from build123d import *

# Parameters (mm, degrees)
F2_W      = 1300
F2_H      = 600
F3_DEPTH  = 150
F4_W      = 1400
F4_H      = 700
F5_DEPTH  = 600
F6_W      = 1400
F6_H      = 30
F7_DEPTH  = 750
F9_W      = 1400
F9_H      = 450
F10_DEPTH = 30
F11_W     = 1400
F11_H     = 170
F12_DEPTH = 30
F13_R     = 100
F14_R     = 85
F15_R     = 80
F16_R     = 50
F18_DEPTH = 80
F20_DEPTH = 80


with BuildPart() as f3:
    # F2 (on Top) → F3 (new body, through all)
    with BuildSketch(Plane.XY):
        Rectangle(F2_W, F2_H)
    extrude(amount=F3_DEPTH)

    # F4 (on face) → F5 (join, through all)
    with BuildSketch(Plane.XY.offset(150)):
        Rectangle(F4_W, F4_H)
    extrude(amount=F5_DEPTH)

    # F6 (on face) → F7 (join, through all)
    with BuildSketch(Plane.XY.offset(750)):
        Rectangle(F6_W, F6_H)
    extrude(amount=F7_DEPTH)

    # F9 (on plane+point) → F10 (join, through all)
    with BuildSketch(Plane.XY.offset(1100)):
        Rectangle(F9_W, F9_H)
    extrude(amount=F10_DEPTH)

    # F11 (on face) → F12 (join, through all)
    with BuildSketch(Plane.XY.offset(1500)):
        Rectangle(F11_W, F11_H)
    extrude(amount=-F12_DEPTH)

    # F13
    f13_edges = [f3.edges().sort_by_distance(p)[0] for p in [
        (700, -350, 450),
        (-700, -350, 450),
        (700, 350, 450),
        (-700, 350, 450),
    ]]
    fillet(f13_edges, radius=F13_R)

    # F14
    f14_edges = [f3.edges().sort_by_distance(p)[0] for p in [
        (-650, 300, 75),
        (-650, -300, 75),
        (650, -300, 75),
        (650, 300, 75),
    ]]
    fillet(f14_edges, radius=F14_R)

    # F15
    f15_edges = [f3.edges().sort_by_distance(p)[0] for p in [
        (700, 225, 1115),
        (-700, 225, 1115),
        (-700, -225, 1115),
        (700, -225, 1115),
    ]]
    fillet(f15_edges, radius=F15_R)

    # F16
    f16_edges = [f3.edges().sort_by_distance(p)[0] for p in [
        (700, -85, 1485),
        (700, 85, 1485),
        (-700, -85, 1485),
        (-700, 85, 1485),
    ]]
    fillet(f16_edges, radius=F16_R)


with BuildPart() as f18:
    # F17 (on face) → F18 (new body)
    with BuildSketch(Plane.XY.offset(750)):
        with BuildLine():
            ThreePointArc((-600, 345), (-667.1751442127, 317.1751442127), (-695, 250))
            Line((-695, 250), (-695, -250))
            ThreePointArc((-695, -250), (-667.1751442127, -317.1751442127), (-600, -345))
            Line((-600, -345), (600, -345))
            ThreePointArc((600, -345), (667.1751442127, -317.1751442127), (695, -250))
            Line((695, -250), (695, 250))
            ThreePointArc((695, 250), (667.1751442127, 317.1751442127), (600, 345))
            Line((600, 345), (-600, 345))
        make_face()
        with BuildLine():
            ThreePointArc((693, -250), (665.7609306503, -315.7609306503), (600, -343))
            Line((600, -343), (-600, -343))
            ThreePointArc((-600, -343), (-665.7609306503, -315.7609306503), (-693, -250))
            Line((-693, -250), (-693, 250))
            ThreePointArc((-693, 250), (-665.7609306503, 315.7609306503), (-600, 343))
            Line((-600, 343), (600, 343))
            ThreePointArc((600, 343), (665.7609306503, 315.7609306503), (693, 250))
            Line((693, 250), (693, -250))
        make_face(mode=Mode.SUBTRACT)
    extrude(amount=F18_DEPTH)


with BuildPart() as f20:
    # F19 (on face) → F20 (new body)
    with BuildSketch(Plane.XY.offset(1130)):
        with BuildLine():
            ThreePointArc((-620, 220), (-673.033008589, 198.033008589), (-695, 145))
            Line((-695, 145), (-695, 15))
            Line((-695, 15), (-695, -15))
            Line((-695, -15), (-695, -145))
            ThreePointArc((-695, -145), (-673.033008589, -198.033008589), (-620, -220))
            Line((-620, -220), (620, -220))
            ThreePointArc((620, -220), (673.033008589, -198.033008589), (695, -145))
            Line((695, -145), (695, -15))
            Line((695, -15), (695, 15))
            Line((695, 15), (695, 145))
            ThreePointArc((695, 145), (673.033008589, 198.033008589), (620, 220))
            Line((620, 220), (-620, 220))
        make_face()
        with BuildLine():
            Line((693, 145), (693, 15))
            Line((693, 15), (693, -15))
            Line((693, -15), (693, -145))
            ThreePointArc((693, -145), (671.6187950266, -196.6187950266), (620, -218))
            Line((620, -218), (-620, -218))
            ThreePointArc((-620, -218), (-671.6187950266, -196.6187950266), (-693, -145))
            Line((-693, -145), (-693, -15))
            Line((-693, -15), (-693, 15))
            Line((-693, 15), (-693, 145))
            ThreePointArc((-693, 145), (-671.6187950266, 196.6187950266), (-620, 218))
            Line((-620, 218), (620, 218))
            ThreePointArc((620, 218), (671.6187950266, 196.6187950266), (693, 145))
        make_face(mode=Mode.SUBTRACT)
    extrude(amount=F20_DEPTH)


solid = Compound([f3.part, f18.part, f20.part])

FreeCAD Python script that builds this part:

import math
import FreeCAD as App
import Part
import Sketcher


def edges_at(feature, points):
    """Names of the edges that pass closest to the given points."""
    edges = feature.Shape.Edges
    near = lambda p: min(range(len(edges)), key=lambda i: edges[i].distToShape(Part.Vertex(*p))[0])
    return sorted({f"Edge{near(p) + 1}" for p in points})

doc = App.newDocument("Part")
body = doc.addObject("PartDesign::Body", "Body")

# Sketch on XY plane
sketch1 = body.newObject("Sketcher::SketchObject", "Sketch")
sketch1.AttachmentSupport = (doc.getObject("XY_Plane"), [""])
sketch1.MapMode = "FlatFace"
sketch1.addGeometry(Part.LineSegment(App.Vector(-650, 300, 0), App.Vector(-650, -300, 0)), False)
sketch1.addGeometry(Part.LineSegment(App.Vector(-650, -300, 0), App.Vector(650, -300, 0)), False)
sketch1.addGeometry(Part.LineSegment(App.Vector(650, -300, 0), App.Vector(650, 300, 0)), False)
sketch1.addGeometry(Part.LineSegment(App.Vector(650, 300, 0), App.Vector(-650, 300, 0)), False)
sketch1.addConstraint(Sketcher.Constraint("Coincident", 0, 2, 1, 1))
sketch1.addConstraint(Sketcher.Constraint("Coincident", 1, 2, 2, 1))
sketch1.addConstraint(Sketcher.Constraint("Coincident", 2, 2, 3, 1))
sketch1.addConstraint(Sketcher.Constraint("Coincident", 3, 2, 0, 1))
sketch1.addConstraint(Sketcher.Constraint("Vertical", 0))
sketch1.addConstraint(Sketcher.Constraint("Horizontal", 1))
sketch1.addConstraint(Sketcher.Constraint("Vertical", 2))
sketch1.addConstraint(Sketcher.Constraint("Horizontal", 3))
sketch1.addConstraint(Sketcher.Constraint("Symmetric", 0, 2, 2, 2, -1, 1))
sketch1.addConstraint(Sketcher.Constraint("DistanceX", 1, 1, 1, 2, 1300.0))
sketch1.addConstraint(Sketcher.Constraint("DistanceY", 0, 2, 0, 1, 600.0))
pad1 = body.newObject("PartDesign::Pad", "Pad")
pad1.Profile = sketch1
pad1.Length = 150

# Sketch on XY plane
sketch2 = body.newObject("Sketcher::SketchObject", "Sketch001")
sketch2.AttachmentSupport = (doc.getObject("XY_Plane"), [""])
sketch2.MapMode = "FlatFace"
sketch2.AttachmentOffset = App.Placement(App.Vector(0, 0, 150), App.Rotation())
sketch2.addGeometry(Part.LineSegment(App.Vector(-700, 350, 0), App.Vector(-700, -350, 0)), False)
sketch2.addGeometry(Part.LineSegment(App.Vector(-700, -350, 0), App.Vector(700, -350, 0)), False)
sketch2.addGeometry(Part.LineSegment(App.Vector(700, -350, 0), App.Vector(700, 350, 0)), False)
sketch2.addGeometry(Part.LineSegment(App.Vector(700, 350, 0), App.Vector(-700, 350, 0)), False)
sketch2.addConstraint(Sketcher.Constraint("Coincident", 0, 2, 1, 1))
sketch2.addConstraint(Sketcher.Constraint("Coincident", 1, 2, 2, 1))
sketch2.addConstraint(Sketcher.Constraint("Coincident", 2, 2, 3, 1))
sketch2.addConstraint(Sketcher.Constraint("Coincident", 3, 2, 0, 1))
sketch2.addConstraint(Sketcher.Constraint("Vertical", 0))
sketch2.addConstraint(Sketcher.Constraint("Horizontal", 1))
sketch2.addConstraint(Sketcher.Constraint("Vertical", 2))
sketch2.addConstraint(Sketcher.Constraint("Horizontal", 3))
sketch2.addConstraint(Sketcher.Constraint("Symmetric", 0, 2, 2, 2, -1, 1))
sketch2.addConstraint(Sketcher.Constraint("DistanceX", 1, 1, 1, 2, 1400.0))
sketch2.addConstraint(Sketcher.Constraint("DistanceY", 0, 2, 0, 1, 700.0))
pad2 = body.newObject("PartDesign::Pad", "Pad001")
pad2.Profile = sketch2
pad2.Length = 600

# Sketch on XY plane
sketch3 = body.newObject("Sketcher::SketchObject", "Sketch002")
sketch3.AttachmentSupport = (doc.getObject("XY_Plane"), [""])
sketch3.MapMode = "FlatFace"
sketch3.AttachmentOffset = App.Placement(App.Vector(0, 0, 750), App.Rotation())
sketch3.addGeometry(Part.LineSegment(App.Vector(-700, 15, 0), App.Vector(-700, -15, 0)), False)
sketch3.addGeometry(Part.LineSegment(App.Vector(-700, -15, 0), App.Vector(700, -15, 0)), False)
sketch3.addGeometry(Part.LineSegment(App.Vector(700, -15, 0), App.Vector(700, 15, 0)), False)
sketch3.addGeometry(Part.LineSegment(App.Vector(700, 15, 0), App.Vector(-700, 15, 0)), False)
sketch3.addConstraint(Sketcher.Constraint("Coincident", 0, 2, 1, 1))
sketch3.addConstraint(Sketcher.Constraint("Coincident", 1, 2, 2, 1))
sketch3.addConstraint(Sketcher.Constraint("Coincident", 2, 2, 3, 1))
sketch3.addConstraint(Sketcher.Constraint("Coincident", 3, 2, 0, 1))
sketch3.addConstraint(Sketcher.Constraint("Vertical", 0))
sketch3.addConstraint(Sketcher.Constraint("Horizontal", 1))
sketch3.addConstraint(Sketcher.Constraint("Vertical", 2))
sketch3.addConstraint(Sketcher.Constraint("Horizontal", 3))
sketch3.addConstraint(Sketcher.Constraint("Symmetric", 0, 2, 2, 2, -1, 1))
sketch3.addConstraint(Sketcher.Constraint("DistanceX", 1, 1, 1, 2, 1400.0))
sketch3.addConstraint(Sketcher.Constraint("DistanceY", 0, 2, 0, 1, 30.0))
pad3 = body.newObject("PartDesign::Pad", "Pad002")
pad3.Profile = sketch3
pad3.Length = 750

# Sketch on XY plane
sketch4 = body.newObject("Sketcher::SketchObject", "Sketch003")
sketch4.AttachmentSupport = (doc.getObject("XY_Plane"), [""])
sketch4.MapMode = "FlatFace"
sketch4.AttachmentOffset = App.Placement(App.Vector(0, 0, 1100), App.Rotation())
sketch4.addGeometry(Part.LineSegment(App.Vector(-700, 225, 0), App.Vector(-700, -225, 0)), False)
sketch4.addGeometry(Part.LineSegment(App.Vector(-700, -225, 0), App.Vector(700, -225, 0)), False)
sketch4.addGeometry(Part.LineSegment(App.Vector(700, -225, 0), App.Vector(700, 225, 0)), False)
sketch4.addGeometry(Part.LineSegment(App.Vector(700, 225, 0), App.Vector(-700, 225, 0)), False)
sketch4.addConstraint(Sketcher.Constraint("Coincident", 0, 2, 1, 1))
sketch4.addConstraint(Sketcher.Constraint("Coincident", 1, 2, 2, 1))
sketch4.addConstraint(Sketcher.Constraint("Coincident", 2, 2, 3, 1))
sketch4.addConstraint(Sketcher.Constraint("Coincident", 3, 2, 0, 1))
sketch4.addConstraint(Sketcher.Constraint("Vertical", 0))
sketch4.addConstraint(Sketcher.Constraint("Horizontal", 1))
sketch4.addConstraint(Sketcher.Constraint("Vertical", 2))
sketch4.addConstraint(Sketcher.Constraint("Horizontal", 3))
sketch4.addConstraint(Sketcher.Constraint("Symmetric", 0, 2, 2, 2, -1, 1))
sketch4.addConstraint(Sketcher.Constraint("DistanceX", 1, 1, 1, 2, 1400.0))
sketch4.addConstraint(Sketcher.Constraint("DistanceY", 0, 2, 0, 1, 450.0))
pad4 = body.newObject("PartDesign::Pad", "Pad003")
pad4.Profile = sketch4
pad4.Length = 30

# Sketch on XY plane
sketch5 = body.newObject("Sketcher::SketchObject", "Sketch004")
sketch5.AttachmentSupport = (doc.getObject("XY_Plane"), [""])
sketch5.MapMode = "FlatFace"
sketch5.AttachmentOffset = App.Placement(App.Vector(0, 0, 1500), App.Rotation())
sketch5.addGeometry(Part.LineSegment(App.Vector(-700, 85, 0), App.Vector(-700, -85, 0)), False)
sketch5.addGeometry(Part.LineSegment(App.Vector(-700, -85, 0), App.Vector(700, -85, 0)), False)
sketch5.addGeometry(Part.LineSegment(App.Vector(700, -85, 0), App.Vector(700, 85, 0)), False)
sketch5.addGeometry(Part.LineSegment(App.Vector(700, 85, 0), App.Vector(-700, 85, 0)), False)
sketch5.addConstraint(Sketcher.Constraint("Coincident", 0, 2, 1, 1))
sketch5.addConstraint(Sketcher.Constraint("Coincident", 1, 2, 2, 1))
sketch5.addConstraint(Sketcher.Constraint("Coincident", 2, 2, 3, 1))
sketch5.addConstraint(Sketcher.Constraint("Coincident", 3, 2, 0, 1))
sketch5.addConstraint(Sketcher.Constraint("Vertical", 0))
sketch5.addConstraint(Sketcher.Constraint("Horizontal", 1))
sketch5.addConstraint(Sketcher.Constraint("Vertical", 2))
sketch5.addConstraint(Sketcher.Constraint("Horizontal", 3))
sketch5.addConstraint(Sketcher.Constraint("Symmetric", 0, 2, 2, 2, -1, 1))
sketch5.addConstraint(Sketcher.Constraint("DistanceX", 1, 1, 1, 2, 1400.0))
sketch5.addConstraint(Sketcher.Constraint("DistanceY", 0, 2, 0, 1, 170.0))
pad5 = body.newObject("PartDesign::Pad", "Pad004")
pad5.Profile = sketch5
pad5.Length = 30
pad5.Reversed = True
doc.recompute()

fillet = body.newObject("PartDesign::Fillet", "Fillet")
fillet.Base = (pad5, edges_at(pad5, [
    (700, -350, 450),
    (-700, -350, 450),
    (700, 350, 450),
    (-700, 350, 450),
]))
fillet.Radius = 100
doc.recompute()

fillet2 = body.newObject("PartDesign::Fillet", "Fillet001")
fillet2.Base = (fillet, edges_at(fillet, [
    (-650, 300, 75),
    (-650, -300, 75),
    (650, -300, 75),
    (650, 300, 75),
]))
fillet2.Radius = 85
doc.recompute()

fillet3 = body.newObject("PartDesign::Fillet", "Fillet002")
fillet3.Base = (fillet2, edges_at(fillet2, [
    (700, 225, 1115),
    (-700, 225, 1115),
    (-700, -225, 1115),
    (700, -225, 1115),
]))
fillet3.Radius = 80
doc.recompute()

fillet4 = body.newObject("PartDesign::Fillet", "Fillet003")
fillet4.Base = (fillet3, edges_at(fillet3, [
    (700, -85, 1485),
    (700, 85, 1485),
    (-700, -85, 1485),
    (-700, 85, 1485),
]))
fillet4.Radius = 50
body2 = doc.addObject("PartDesign::Body", "Body001")

# Sketch on XY plane
sketch6 = body2.newObject("Sketcher::SketchObject", "Sketch005")
sketch6.AttachmentSupport = (doc.getObject("XY_Plane001"), [""])
sketch6.MapMode = "FlatFace"
sketch6.AttachmentOffset = App.Placement(App.Vector(0, 0, 750), App.Rotation())
sketch6.addGeometry(Part.ArcOfCircle(Part.Circle(App.Vector(-600, 250, 0), App.Vector(0, 0, 1), 95), math.radians(90), math.radians(180)), False)
sketch6.addGeometry(Part.LineSegment(App.Vector(-695, 250, 0), App.Vector(-695, -250, 0)), False)
sketch6.addGeometry(Part.ArcOfCircle(Part.Circle(App.Vector(-600, -250, 0), App.Vector(0, 0, 1), 95), math.radians(180), math.radians(270)), False)
sketch6.addGeometry(Part.LineSegment(App.Vector(-600, -345, 0), App.Vector(600, -345, 0)), False)
sketch6.addGeometry(Part.ArcOfCircle(Part.Circle(App.Vector(600, -250, 0), App.Vector(0, 0, 1), 95), math.radians(-90), math.radians(0)), False)
sketch6.addGeometry(Part.LineSegment(App.Vector(695, -250, 0), App.Vector(695, 250, 0)), False)
sketch6.addGeometry(Part.ArcOfCircle(Part.Circle(App.Vector(600, 250, 0), App.Vector(0, 0, 1), 95), math.radians(0), math.radians(90)), False)
sketch6.addGeometry(Part.LineSegment(App.Vector(600, 345, 0), App.Vector(-600, 345, 0)), False)
sketch6.addGeometry(Part.LineSegment(App.Vector(693, 250, 0), App.Vector(693, -250, 0)), False)
sketch6.addGeometry(Part.ArcOfCircle(Part.Circle(App.Vector(600, -250, 0), App.Vector(0, 0, 1), 93), math.radians(-90), math.radians(0)), False)
sketch6.addGeometry(Part.LineSegment(App.Vector(600, -343, 0), App.Vector(-600, -343, 0)), False)
sketch6.addGeometry(Part.ArcOfCircle(Part.Circle(App.Vector(-600, -250, 0), App.Vector(0, 0, 1), 93), math.radians(180), math.radians(270)), False)
sketch6.addGeometry(Part.LineSegment(App.Vector(-693, -250, 0), App.Vector(-693, 250, 0)), False)
sketch6.addGeometry(Part.ArcOfCircle(Part.Circle(App.Vector(-600, 250, 0), App.Vector(0, 0, 1), 93), math.radians(90), math.radians(180)), False)
sketch6.addGeometry(Part.LineSegment(App.Vector(-600, 343, 0), App.Vector(600, 343, 0)), False)
sketch6.addGeometry(Part.ArcOfCircle(Part.Circle(App.Vector(600, 250, 0), App.Vector(0, 0, 1), 93), math.radians(0), math.radians(90)), False)
sketch6.addConstraint(Sketcher.Constraint("Tangent", 0, 2, 1, 1))
sketch6.addConstraint(Sketcher.Constraint("Tangent", 1, 2, 2, 1))
sketch6.addConstraint(Sketcher.Constraint("Tangent", 2, 2, 3, 1))
sketch6.addConstraint(Sketcher.Constraint("Tangent", 3, 2, 4, 1))
sketch6.addConstraint(Sketcher.Constraint("Tangent", 4, 2, 5, 1))
sketch6.addConstraint(Sketcher.Constraint("Tangent", 5, 2, 6, 1))
sketch6.addConstraint(Sketcher.Constraint("Tangent", 6, 2, 7, 1))
sketch6.addConstraint(Sketcher.Constraint("Tangent", 7, 2, 0, 1))
sketch6.addConstraint(Sketcher.Constraint("Tangent", 8, 2, 9, 2))
sketch6.addConstraint(Sketcher.Constraint("Tangent", 9, 1, 10, 1))
sketch6.addConstraint(Sketcher.Constraint("Tangent", 10, 2, 11, 2))
sketch6.addConstraint(Sketcher.Constraint("Tangent", 11, 1, 12, 1))
sketch6.addConstraint(Sketcher.Constraint("Tangent", 12, 2, 13, 2))
sketch6.addConstraint(Sketcher.Constraint("Tangent", 13, 1, 14, 1))
sketch6.addConstraint(Sketcher.Constraint("Tangent", 14, 2, 15, 2))
sketch6.addConstraint(Sketcher.Constraint("Tangent", 15, 1, 8, 1))
sketch6.addConstraint(Sketcher.Constraint("Vertical", 1))
sketch6.addConstraint(Sketcher.Constraint("Horizontal", 3))
sketch6.addConstraint(Sketcher.Constraint("Vertical", 5))
sketch6.addConstraint(Sketcher.Constraint("Horizontal", 7))
sketch6.addConstraint(Sketcher.Constraint("Vertical", 8))
sketch6.addConstraint(Sketcher.Constraint("Horizontal", 10))
sketch6.addConstraint(Sketcher.Constraint("Vertical", 12))
sketch6.addConstraint(Sketcher.Constraint("Horizontal", 14))
sketch6.addConstraint(Sketcher.Constraint("Coincident", 9, 3, 4, 3))
sketch6.addConstraint(Sketcher.Constraint("Coincident", 11, 3, 2, 3))
sketch6.addConstraint(Sketcher.Constraint("Coincident", 13, 3, 0, 3))
sketch6.addConstraint(Sketcher.Constraint("Equal", 0, 2))
sketch6.addConstraint(Sketcher.Constraint("Equal", 2, 4))
sketch6.addConstraint(Sketcher.Constraint("Equal", 4, 6))
sketch6.addConstraint(Sketcher.Constraint("Equal", 13, 15))
sketch6.addConstraint(Sketcher.Constraint("Symmetric", 0, 3, 4, 3, -1, 1))
sketch6.addConstraint(Sketcher.Constraint("Radius", 0, 95.0))
sketch6.addConstraint(Sketcher.Constraint("Radius", 9, 93.0))
sketch6.addConstraint(Sketcher.Constraint("DistanceX", 3, 1, 3, 2, 1200.0))
sketch6.addConstraint(Sketcher.Constraint("DistanceY", 1, 2, 1, 1, 500.0))
pad6 = body2.newObject("PartDesign::Pad", "Pad005")
pad6.Profile = sketch6
pad6.Length = 80
body3 = doc.addObject("PartDesign::Body", "Body002")

# Sketch on XY plane
sketch7 = body3.newObject("Sketcher::SketchObject", "Sketch006")
sketch7.AttachmentSupport = (doc.getObject("XY_Plane002"), [""])
sketch7.MapMode = "FlatFace"
sketch7.AttachmentOffset = App.Placement(App.Vector(0, 0, 1130), App.Rotation())
sketch7.addGeometry(Part.ArcOfCircle(Part.Circle(App.Vector(-620, 145, 0), App.Vector(0, 0, 1), 75), math.radians(90), math.radians(180)), False)
sketch7.addGeometry(Part.LineSegment(App.Vector(-695, 145, 0), App.Vector(-695, -145, 0)), False)
sketch7.addGeometry(Part.ArcOfCircle(Part.Circle(App.Vector(-620, -145, 0), App.Vector(0, 0, 1), 75), math.radians(180), math.radians(270)), False)
sketch7.addGeometry(Part.LineSegment(App.Vector(-620, -220, 0), App.Vector(620, -220, 0)), False)
sketch7.addGeometry(Part.ArcOfCircle(Part.Circle(App.Vector(620, -145, 0), App.Vector(0, 0, 1), 75), math.radians(-90), math.radians(0)), False)
sketch7.addGeometry(Part.LineSegment(App.Vector(695, -145, 0), App.Vector(695, 145, 0)), False)
sketch7.addGeometry(Part.ArcOfCircle(Part.Circle(App.Vector(620, 145, 0), App.Vector(0, 0, 1), 75), math.radians(0), math.radians(90)), False)
sketch7.addGeometry(Part.LineSegment(App.Vector(620, 220, 0), App.Vector(-620, 220, 0)), False)
sketch7.addGeometry(Part.ArcOfCircle(Part.Circle(App.Vector(620, 145, 0), App.Vector(0, 0, 1), 73), math.radians(0), math.radians(90)), False)
sketch7.addGeometry(Part.LineSegment(App.Vector(693, 145, 0), App.Vector(693, -145, 0)), False)
sketch7.addGeometry(Part.ArcOfCircle(Part.Circle(App.Vector(620, -145, 0), App.Vector(0, 0, 1), 73), math.radians(-90), math.radians(0)), False)
sketch7.addGeometry(Part.LineSegment(App.Vector(620, -218, 0), App.Vector(-620, -218, 0)), False)
sketch7.addGeometry(Part.ArcOfCircle(Part.Circle(App.Vector(-620, -145, 0), App.Vector(0, 0, 1), 73), math.radians(180), math.radians(270)), False)
sketch7.addGeometry(Part.LineSegment(App.Vector(-693, -145, 0), App.Vector(-693, 145, 0)), False)
sketch7.addGeometry(Part.ArcOfCircle(Part.Circle(App.Vector(-620, 145, 0), App.Vector(0, 0, 1), 73), math.radians(90), math.radians(180)), False)
sketch7.addGeometry(Part.LineSegment(App.Vector(-620, 218, 0), App.Vector(620, 218, 0)), False)
sketch7.addConstraint(Sketcher.Constraint("Tangent", 0, 2, 1, 1))
sketch7.addConstraint(Sketcher.Constraint("Tangent", 1, 2, 2, 1))
sketch7.addConstraint(Sketcher.Constraint("Tangent", 2, 2, 3, 1))
sketch7.addConstraint(Sketcher.Constraint("Tangent", 3, 2, 4, 1))
sketch7.addConstraint(Sketcher.Constraint("Tangent", 4, 2, 5, 1))
sketch7.addConstraint(Sketcher.Constraint("Tangent", 5, 2, 6, 1))
sketch7.addConstraint(Sketcher.Constraint("Tangent", 6, 2, 7, 1))
sketch7.addConstraint(Sketcher.Constraint("Tangent", 7, 2, 0, 1))
sketch7.addConstraint(Sketcher.Constraint("Tangent", 8, 1, 9, 1))
sketch7.addConstraint(Sketcher.Constraint("Tangent", 9, 2, 10, 2))
sketch7.addConstraint(Sketcher.Constraint("Tangent", 10, 1, 11, 1))
sketch7.addConstraint(Sketcher.Constraint("Tangent", 11, 2, 12, 2))
sketch7.addConstraint(Sketcher.Constraint("Tangent", 12, 1, 13, 1))
sketch7.addConstraint(Sketcher.Constraint("Tangent", 13, 2, 14, 2))
sketch7.addConstraint(Sketcher.Constraint("Tangent", 14, 1, 15, 1))
sketch7.addConstraint(Sketcher.Constraint("Tangent", 15, 2, 8, 2))
sketch7.addConstraint(Sketcher.Constraint("Vertical", 1))
sketch7.addConstraint(Sketcher.Constraint("Horizontal", 3))
sketch7.addConstraint(Sketcher.Constraint("Vertical", 5))
sketch7.addConstraint(Sketcher.Constraint("Horizontal", 7))
sketch7.addConstraint(Sketcher.Constraint("Vertical", 9))
sketch7.addConstraint(Sketcher.Constraint("Horizontal", 11))
sketch7.addConstraint(Sketcher.Constraint("Vertical", 13))
sketch7.addConstraint(Sketcher.Constraint("Horizontal", 15))
sketch7.addConstraint(Sketcher.Constraint("Coincident", 8, 3, 6, 3))
sketch7.addConstraint(Sketcher.Constraint("Coincident", 10, 3, 4, 3))
sketch7.addConstraint(Sketcher.Constraint("Coincident", 12, 3, 2, 3))
sketch7.addConstraint(Sketcher.Constraint("Equal", 0, 2))
sketch7.addConstraint(Sketcher.Constraint("Equal", 2, 4))
sketch7.addConstraint(Sketcher.Constraint("Equal", 4, 6))
sketch7.addConstraint(Sketcher.Constraint("Equal", 12, 14))
sketch7.addConstraint(Sketcher.Constraint("Symmetric", 0, 3, 4, 3, -1, 1))
sketch7.addConstraint(Sketcher.Constraint("Radius", 0, 75.0))
sketch7.addConstraint(Sketcher.Constraint("Radius", 8, 73.0))
sketch7.addConstraint(Sketcher.Constraint("DistanceX", 3, 1, 3, 2, 1240.0))
sketch7.addConstraint(Sketcher.Constraint("DistanceY", 1, 2, 1, 1, 290.0))
pad7 = body3.newObject("PartDesign::Pad", "Pad006")
pad7.Profile = sketch7
pad7.Length = 80

doc.recompute()
